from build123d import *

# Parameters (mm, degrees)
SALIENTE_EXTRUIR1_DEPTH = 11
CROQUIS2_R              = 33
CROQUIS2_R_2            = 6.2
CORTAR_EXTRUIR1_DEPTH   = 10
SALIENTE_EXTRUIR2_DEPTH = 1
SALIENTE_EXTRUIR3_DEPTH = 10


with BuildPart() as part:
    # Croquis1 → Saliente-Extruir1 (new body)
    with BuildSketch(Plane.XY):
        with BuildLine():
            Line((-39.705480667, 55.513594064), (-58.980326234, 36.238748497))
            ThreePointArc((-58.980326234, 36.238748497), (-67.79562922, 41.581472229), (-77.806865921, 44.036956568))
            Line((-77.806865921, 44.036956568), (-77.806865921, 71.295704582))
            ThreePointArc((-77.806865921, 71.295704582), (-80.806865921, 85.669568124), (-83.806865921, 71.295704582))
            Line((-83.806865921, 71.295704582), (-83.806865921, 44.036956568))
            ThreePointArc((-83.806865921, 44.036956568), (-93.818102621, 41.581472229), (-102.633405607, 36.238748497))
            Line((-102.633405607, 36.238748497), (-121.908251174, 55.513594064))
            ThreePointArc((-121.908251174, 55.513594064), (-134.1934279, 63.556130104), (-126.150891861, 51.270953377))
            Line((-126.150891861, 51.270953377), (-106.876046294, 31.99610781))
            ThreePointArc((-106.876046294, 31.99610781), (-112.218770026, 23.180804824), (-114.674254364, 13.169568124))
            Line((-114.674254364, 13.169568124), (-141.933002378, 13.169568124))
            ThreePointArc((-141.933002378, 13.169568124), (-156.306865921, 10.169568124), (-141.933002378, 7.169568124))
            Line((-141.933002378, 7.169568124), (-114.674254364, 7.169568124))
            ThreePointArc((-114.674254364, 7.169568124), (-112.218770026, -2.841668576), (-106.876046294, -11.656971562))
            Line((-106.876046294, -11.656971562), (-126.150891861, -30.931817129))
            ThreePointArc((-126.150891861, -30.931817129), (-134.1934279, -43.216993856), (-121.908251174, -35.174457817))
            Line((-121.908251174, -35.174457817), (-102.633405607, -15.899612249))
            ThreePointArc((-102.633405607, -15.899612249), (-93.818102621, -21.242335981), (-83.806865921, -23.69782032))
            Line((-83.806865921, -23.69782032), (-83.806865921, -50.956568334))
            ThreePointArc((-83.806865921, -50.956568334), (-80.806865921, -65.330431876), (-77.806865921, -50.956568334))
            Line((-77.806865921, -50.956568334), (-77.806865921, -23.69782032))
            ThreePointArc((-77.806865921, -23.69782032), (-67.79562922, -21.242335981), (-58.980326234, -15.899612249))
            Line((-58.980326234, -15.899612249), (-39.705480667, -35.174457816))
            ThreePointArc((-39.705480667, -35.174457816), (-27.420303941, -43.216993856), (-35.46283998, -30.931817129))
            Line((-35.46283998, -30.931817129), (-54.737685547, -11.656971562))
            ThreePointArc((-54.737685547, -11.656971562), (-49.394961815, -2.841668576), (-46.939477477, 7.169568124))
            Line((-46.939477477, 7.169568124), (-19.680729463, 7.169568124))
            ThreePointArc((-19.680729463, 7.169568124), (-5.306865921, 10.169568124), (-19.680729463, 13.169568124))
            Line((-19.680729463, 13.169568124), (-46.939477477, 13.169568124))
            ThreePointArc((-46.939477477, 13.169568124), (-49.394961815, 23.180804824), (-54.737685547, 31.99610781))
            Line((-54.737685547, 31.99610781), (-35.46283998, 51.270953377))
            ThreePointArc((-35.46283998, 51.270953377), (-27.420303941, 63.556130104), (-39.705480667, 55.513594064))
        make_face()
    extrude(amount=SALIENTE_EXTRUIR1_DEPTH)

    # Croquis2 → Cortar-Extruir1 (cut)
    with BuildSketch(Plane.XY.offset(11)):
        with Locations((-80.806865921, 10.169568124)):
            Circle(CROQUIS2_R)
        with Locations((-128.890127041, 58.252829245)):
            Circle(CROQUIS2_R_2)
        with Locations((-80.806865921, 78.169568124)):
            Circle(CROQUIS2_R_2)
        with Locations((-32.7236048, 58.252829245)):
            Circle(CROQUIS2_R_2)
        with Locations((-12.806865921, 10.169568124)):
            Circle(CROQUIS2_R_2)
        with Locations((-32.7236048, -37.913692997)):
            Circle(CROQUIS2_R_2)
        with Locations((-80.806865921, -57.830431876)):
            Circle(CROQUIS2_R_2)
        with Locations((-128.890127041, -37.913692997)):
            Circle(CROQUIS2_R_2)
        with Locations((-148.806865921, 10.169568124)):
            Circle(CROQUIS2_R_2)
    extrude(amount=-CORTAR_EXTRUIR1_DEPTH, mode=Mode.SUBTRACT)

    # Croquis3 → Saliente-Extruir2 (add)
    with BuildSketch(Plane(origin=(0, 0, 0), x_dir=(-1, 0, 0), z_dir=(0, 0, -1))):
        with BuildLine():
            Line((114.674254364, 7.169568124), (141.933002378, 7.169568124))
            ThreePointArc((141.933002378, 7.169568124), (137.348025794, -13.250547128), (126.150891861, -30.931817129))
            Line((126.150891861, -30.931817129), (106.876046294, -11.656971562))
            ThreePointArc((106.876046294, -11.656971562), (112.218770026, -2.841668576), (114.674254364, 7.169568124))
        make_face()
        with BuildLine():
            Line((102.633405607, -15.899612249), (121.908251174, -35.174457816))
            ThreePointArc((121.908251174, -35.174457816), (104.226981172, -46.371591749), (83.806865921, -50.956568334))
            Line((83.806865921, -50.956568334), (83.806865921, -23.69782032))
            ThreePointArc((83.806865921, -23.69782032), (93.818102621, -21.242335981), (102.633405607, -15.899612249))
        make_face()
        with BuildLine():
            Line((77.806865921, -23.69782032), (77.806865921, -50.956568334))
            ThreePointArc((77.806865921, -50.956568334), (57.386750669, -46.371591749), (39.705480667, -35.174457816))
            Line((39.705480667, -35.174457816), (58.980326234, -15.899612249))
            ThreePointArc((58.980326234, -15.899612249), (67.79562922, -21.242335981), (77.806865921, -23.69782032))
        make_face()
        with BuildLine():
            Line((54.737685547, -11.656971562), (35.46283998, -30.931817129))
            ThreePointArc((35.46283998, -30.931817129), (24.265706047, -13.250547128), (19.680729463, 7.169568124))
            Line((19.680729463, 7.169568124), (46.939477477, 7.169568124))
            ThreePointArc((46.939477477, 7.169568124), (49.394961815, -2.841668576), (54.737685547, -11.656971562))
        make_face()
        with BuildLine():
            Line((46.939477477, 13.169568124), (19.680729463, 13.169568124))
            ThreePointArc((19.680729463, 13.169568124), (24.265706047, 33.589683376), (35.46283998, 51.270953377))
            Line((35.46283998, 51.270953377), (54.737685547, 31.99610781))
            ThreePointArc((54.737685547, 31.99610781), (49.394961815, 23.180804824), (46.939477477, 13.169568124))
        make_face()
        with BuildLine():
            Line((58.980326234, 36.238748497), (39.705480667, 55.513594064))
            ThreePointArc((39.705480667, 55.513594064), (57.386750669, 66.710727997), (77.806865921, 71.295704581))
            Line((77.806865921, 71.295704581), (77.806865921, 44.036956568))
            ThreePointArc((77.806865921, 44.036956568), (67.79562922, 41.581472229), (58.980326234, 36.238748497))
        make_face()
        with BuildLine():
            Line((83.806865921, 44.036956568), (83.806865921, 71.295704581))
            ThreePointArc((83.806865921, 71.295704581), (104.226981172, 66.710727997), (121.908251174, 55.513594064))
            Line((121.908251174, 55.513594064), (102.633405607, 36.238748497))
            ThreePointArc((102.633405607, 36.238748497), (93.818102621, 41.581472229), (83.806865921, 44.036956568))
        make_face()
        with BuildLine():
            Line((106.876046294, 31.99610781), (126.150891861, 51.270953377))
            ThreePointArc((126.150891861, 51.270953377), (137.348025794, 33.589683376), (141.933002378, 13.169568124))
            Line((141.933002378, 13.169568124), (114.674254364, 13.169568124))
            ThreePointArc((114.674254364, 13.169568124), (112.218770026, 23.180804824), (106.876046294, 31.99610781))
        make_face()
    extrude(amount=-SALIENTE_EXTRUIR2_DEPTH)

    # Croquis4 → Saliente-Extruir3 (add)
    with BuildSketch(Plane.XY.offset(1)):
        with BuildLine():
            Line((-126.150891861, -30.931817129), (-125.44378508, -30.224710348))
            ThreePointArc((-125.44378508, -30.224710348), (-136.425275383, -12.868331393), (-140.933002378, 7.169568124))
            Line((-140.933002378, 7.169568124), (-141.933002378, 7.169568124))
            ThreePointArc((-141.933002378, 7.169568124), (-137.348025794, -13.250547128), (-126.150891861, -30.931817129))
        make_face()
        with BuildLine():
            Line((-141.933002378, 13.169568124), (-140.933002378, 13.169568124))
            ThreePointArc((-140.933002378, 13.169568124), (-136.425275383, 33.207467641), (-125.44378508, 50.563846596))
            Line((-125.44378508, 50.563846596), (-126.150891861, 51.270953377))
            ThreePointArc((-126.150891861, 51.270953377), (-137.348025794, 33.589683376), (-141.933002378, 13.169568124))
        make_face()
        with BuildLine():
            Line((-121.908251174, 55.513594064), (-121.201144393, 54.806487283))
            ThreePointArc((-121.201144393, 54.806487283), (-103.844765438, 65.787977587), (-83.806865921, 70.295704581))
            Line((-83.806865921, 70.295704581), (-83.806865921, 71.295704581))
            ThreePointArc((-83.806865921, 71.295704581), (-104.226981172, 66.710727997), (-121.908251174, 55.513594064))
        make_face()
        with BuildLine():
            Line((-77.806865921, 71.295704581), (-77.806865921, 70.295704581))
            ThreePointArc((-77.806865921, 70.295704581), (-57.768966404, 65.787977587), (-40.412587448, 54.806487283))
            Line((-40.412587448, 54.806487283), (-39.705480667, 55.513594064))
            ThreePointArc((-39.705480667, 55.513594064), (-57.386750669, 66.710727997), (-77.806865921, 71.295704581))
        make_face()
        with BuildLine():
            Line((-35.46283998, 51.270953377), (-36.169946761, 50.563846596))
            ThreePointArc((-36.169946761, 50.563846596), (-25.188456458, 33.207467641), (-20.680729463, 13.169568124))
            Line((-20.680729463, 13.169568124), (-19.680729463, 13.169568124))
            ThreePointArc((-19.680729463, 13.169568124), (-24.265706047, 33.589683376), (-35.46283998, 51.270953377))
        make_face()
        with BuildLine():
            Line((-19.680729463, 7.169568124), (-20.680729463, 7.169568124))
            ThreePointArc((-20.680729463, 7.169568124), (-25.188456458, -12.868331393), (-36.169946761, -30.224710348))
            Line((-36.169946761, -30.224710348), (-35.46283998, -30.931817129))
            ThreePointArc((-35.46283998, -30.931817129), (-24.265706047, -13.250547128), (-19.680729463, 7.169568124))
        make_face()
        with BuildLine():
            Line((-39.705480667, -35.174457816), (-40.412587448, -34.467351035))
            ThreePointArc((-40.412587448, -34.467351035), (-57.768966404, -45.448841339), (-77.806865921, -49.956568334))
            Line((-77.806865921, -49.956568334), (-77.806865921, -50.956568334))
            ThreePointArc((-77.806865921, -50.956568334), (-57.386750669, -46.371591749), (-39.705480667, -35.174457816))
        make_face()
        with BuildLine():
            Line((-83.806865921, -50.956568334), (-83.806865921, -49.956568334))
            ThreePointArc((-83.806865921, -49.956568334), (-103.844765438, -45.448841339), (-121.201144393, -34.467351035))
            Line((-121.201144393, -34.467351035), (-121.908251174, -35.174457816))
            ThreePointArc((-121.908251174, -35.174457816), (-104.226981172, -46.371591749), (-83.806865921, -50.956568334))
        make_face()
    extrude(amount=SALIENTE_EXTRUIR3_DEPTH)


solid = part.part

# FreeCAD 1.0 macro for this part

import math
import FreeCAD as App
import Part
import Sketcher
Q = App.Units.Quantity

doc = App.newDocument("Part")
body = doc.addObject("PartDesign::Body", "Body")

# Sketch on XY plane
sketch1 = body.newObject("Sketcher::SketchObject", "Sketch")
sketch1.AttachmentSupport = (doc.getObject("XY_Plane"), [""])
sketch1.MapMode = "FlatFace"
sketch1.addGeometry(Part.LineSegment(App.Vector(-40, 56, 0), App.Vector(-59, 36, 0)), False)
sketch1.addGeometry(Part.ArcOfCircle(Part.Circle(App.Vector(-81, 10, 0), App.Vector(0, 0, 1), 34), math.radians(50), math.radians(85)), False)
sketch1.addGeometry(Part.LineSegment(App.Vector(-78, 44, 0), App.Vector(-78, 71, 0)), False)
sketch1.addGeometry(Part.ArcOfCircle(Part.Circle(App.Vector(-81, 78, 0), App.Vector(0, 0, 1), 8), math.radians(-66), math.radians(246)), False)
sketch1.addGeometry(Part.LineSegment(App.Vector(-84, 71, 0), App.Vector(-84, 44, 0)), False)
sketch1.addGeometry(Part.ArcOfCircle(Part.Circle(App.Vector(-81, 10, 0), App.Vector(0, 0, 1), 34), math.radians(95), math.radians(130)), False)
sketch1.addGeometry(Part.LineSegment(App.Vector(-103, 36, 0), App.Vector(-122, 56, 0)), False)
sketch1.addGeometry(Part.ArcOfCircle(Part.Circle(App.Vector(-129, 58, 0), App.Vector(0, 0, 1), 8), math.radians(-21), math.radians(291)), False)
sketch1.addGeometry(Part.LineSegment(App.Vector(-126, 51, 0), App.Vector(-107, 32, 0)), False)
sketch1.addGeometry(Part.ArcOfCircle(Part.Circle(App.Vector(-81, 10, 0), App.Vector(0, 0, 1), 34), math.radians(140), math.radians(175)), False)
sketch1.addGeometry(Part.LineSegment(App.Vector(-115, 13, 0), App.Vector(-142, 13, 0)), False)
sketch1.addGeometry(Part.ArcOfCircle(Part.Circle(App.Vector(-149, 10, 0), App.Vector(0, 0, 1), 8), math.radians(24), math.radians(336)), False)
sketch1.addGeometry(Part.LineSegment(App.Vector(-142, 7, 0), App.Vector(-115, 7, 0)), False)
sketch1.addGeometry(Part.ArcOfCircle(Part.Circle(App.Vector(-81, 10, 0), App.Vector(0, 0, 1), 34), math.radians(-175), math.radians(-140)), False)
sketch1.addGeometry(Part.LineSegment(App.Vector(-107, -12, 0), App.Vector(-126, -31, 0)), False)
sketch1.addGeometry(Part.ArcOfCircle(Part.Circle(App.Vector(-129, -38, 0), App.Vector(0, 0, 1), 8), math.radians(69), math.radians(381)), False)
sketch1.addGeometry(Part.LineSegment(App.Vector(-122, -35, 0), App.Vector(-103, -16, 0)), False)
sketch1.addGeometry(Part.ArcOfCircle(Part.Circle(App.Vector(-81, 10, 0), App.Vector(0, 0, 1), 34), math.radians(-130), math.radians(-95)), False)
sketch1.addGeometry(Part.LineSegment(App.Vector(-84, -24, 0), App.Vector(-84, -51, 0)), False)
sketch1.addGeometry(Part.ArcOfCircle(Part.Circle(App.Vector(-81, -58, 0), App.Vector(0, 0, 1), 8), math.radians(114), math.radians(426)), False)
sketch1.addGeometry(Part.LineSegment(App.Vector(-78, -51, 0), App.Vector(-78, -24, 0)), False)
sketch1.addGeometry(Part.ArcOfCircle(Part.Circle(App.Vector(-81, 10, 0), App.Vector(0, 0, 1), 34), math.radians(-85), math.radians(-50)), False)
sketch1.addGeometry(Part.LineSegment(App.Vector(-59, -16, 0), App.Vector(-40, -35, 0)), False)
sketch1.addGeometry(Part.ArcOfCircle(Part.Circle(App.Vector(-33, -38, 0), App.Vector(0, 0, 1), 8), math.radians(159), math.radians(471)), False)
sketch1.addGeometry(Part.LineSegment(App.Vector(-35, -31, 0), App.Vector(-55, -12, 0)), False)
sketch1.addGeometry(Part.ArcOfCircle(Part.Circle(App.Vector(-81, 10, 0), App.Vector(0, 0, 1), 34), math.radians(-40), math.radians(-5)), False)
sketch1.addGeometry(Part.LineSegment(App.Vector(-47, 7, 0), App.Vector(-20, 7, 0)), False)
sketch1.addGeometry(Part.ArcOfCircle(Part.Circle(App.Vector(-13, 10, 0), App.Vector(0, 0, 1), 8), math.radians(-156), math.radians(156)), False)
sketch1.addGeometry(Part.LineSegment(App.Vector(-20, 13, 0), App.Vector(-47, 13, 0)), False)
sketch1.addGeometry(Part.ArcOfCircle(Part.Circle(App.Vector(-81, 10, 0), App.Vector(0, 0, 1), 34), math.radians(5), math.radians(40)), False)
sketch1.addGeometry(Part.LineSegment(App.Vector(-55, 32, 0), App.Vector(-35, 51, 0)), False)
sketch1.addGeometry(Part.ArcOfCircle(Part.Circle(App.Vector(-33, 58, 0), App.Vector(0, 0, 1), 8), math.radians(-111), math.radians(201)), False)
sketch1.addConstraint(Sketcher.Constraint("Coincident", 0, 2, 1, 1))
sketch1.addConstraint(Sketcher.Constraint("Coincident", 1, 2, 2, 1))
sketch1.addConstraint(Sketcher.Constraint("Coincident", 2, 2, 3, 1))
sketch1.addConstraint(Sketcher.Constraint("Coincident", 3, 2, 4, 1))
sketch1.addConstraint(Sketcher.Constraint("Coincident", 4, 2, 5, 1))
sketch1.addConstraint(Sketcher.Constraint("Coincident", 5, 2, 6, 1))
sketch1.addConstraint(Sketcher.Constraint("Coincident", 6, 2, 7, 1))
sketch1.addConstraint(Sketcher.Constraint("Coincident", 7, 2, 8, 1))
sketch1.addConstraint(Sketcher.Constraint("Coincident", 8, 2, 9, 1))
sketch1.addConstraint(Sketcher.Constraint("Coincident", 9, 2, 10, 1))
sketch1.addConstraint(Sketcher.Constraint("Coincident", 10, 2, 11, 1))
sketch1.addConstraint(Sketcher.Constraint("Coincident", 11, 2, 12, 1))
sketch1.addConstraint(Sketcher.Constraint("Coincident", 12, 2, 13, 1))
sketch1.addConstraint(Sketcher.Constraint("Coincident", 13, 2, 14, 1))
sketch1.addConstraint(Sketcher.Constraint("Coincident", 14, 2, 15, 1))
sketch1.addConstraint(Sketcher.Constraint("Coincident", 15, 2, 16, 1))
sketch1.addConstraint(Sketcher.Constraint("Coincident", 16, 2, 17, 1))
sketch1.addConstraint(Sketcher.Constraint("Coincident", 17, 2, 18, 1))
sketch1.addConstraint(Sketcher.Constraint("Coincident", 18, 2, 19, 1))
sketch1.addConstraint(Sketcher.Constraint("Coincident", 19, 2, 20, 1))
sketch1.addConstraint(Sketcher.Constraint("Coincident", 20, 2, 21, 1))
sketch1.addConstraint(Sketcher.Constraint("Coincident", 21, 2, 22, 1))
sketch1.addConstraint(Sketcher.Constraint("Coincident", 22, 2, 23, 1))
sketch1.addConstraint(Sketcher.Constraint("Coincident", 23, 2, 24, 1))
sketch1.addConstraint(Sketcher.Constraint("Coincident", 24, 2, 25, 1))
sketch1.addConstraint(Sketcher.Constraint("Coincident", 25, 2, 26, 1))
sketch1.addConstraint(Sketcher.Constraint("Coincident", 26, 2, 27, 1))
sketch1.addConstraint(Sketcher.Constraint("Coincident", 27, 2, 28, 1))
sketch1.addConstraint(Sketcher.Constraint("Coincident", 28, 2, 29, 1))
sketch1.addConstraint(Sketcher.Constraint("Coincident", 29, 2, 30, 1))
sketch1.addConstraint(Sketcher.Constraint("Coincident", 30, 2, 31, 1))
sketch1.addConstraint(Sketcher.Constraint("Coincident", 31, 2, 0, 1))
sketch1.addConstraint(Sketcher.Constraint("Vertical", 2))
sketch1.addConstraint(Sketcher.Constraint("Vertical", 4))
sketch1.addConstraint(Sketcher.Constraint("Horizontal", 10))
sketch1.addConstraint(Sketcher.Constraint("Horizontal", 12))
sketch1.addConstraint(Sketcher.Constraint("Vertical", 18))
sketch1.addConstraint(Sketcher.Constraint("Vertical", 20))
sketch1.addConstraint(Sketcher.Constraint("Horizontal", 26))
sketch1.addConstraint(Sketcher.Constraint("Horizontal", 28))
sketch1.addConstraint(Sketcher.Constraint("Coincident", 5, 3, 1, 3))
sketch1.addConstraint(Sketcher.Constraint("Coincident", 9, 3, 1, 3))
sketch1.addConstraint(Sketcher.Constraint("Coincident", 13, 3, 1, 3))
sketch1.addConstraint(Sketcher.Constraint("Coincident", 17, 3, 1, 3))
sketch1.addConstraint(Sketcher.Constraint("Coincident", 21, 3, 1, 3))
sketch1.addConstraint(Sketcher.Constraint("Coincident", 25, 3, 1, 3))
sketch1.addConstraint(Sketcher.Constraint("Coincident", 29, 3, 1, 3))
sketch1.addConstraint(Sketcher.Constraint("Equal", 1, 5))
sketch1.addConstraint(Sketcher.Constraint("Equal", 3, 7))
sketch1.addConstraint(Sketcher.Constraint("Equal", 5, 9))
sketch1.addConstraint(Sketcher.Constraint("Equal", 7, 11))
sketch1.addConstraint(Sketcher.Constraint("Equal", 9, 13))
sketch1.addConstraint(Sketcher.Constraint("Equal", 11, 15))
sketch1.addConstraint(Sketcher.Constraint("Equal", 13, 17))
sketch1.addConstraint(Sketcher.Constraint("Equal", 15, 19))
sketch1.addConstraint(Sketcher.Constraint("Equal", 17, 21))
sketch1.addConstraint(Sketcher.Constraint("Equal", 19, 23))
sketch1.addConstraint(Sketcher.Constraint("Equal", 21, 25))
sketch1.addConstraint(Sketcher.Constraint("Equal", 23, 27))
sketch1.addConstraint(Sketcher.Constraint("Equal", 25, 29))
sketch1.addConstraint(Sketcher.Constraint("Equal", 27, 31))
sketch1.addConstraint(Sketcher.Constraint("Perpendicular", 0, 6))
sketch1.addConstraint(Sketcher.Constraint("Parallel", 6, 8))
sketch1.addConstraint(Sketcher.Constraint("Perpendicular", 8, 14))
sketch1.addConstraint(Sketcher.Constraint("Parallel", 14, 16))
sketch1.addConstraint(Sketcher.Constraint("Perpendicular", 16, 22))
sketch1.addConstraint(Sketcher.Constraint("Parallel", 22, 24))
sketch1.addConstraint(Sketcher.Constraint("Perpendicular", 24, 30))
sketch1.addConstraint(Sketcher.Constraint("Horizontal", 9, 3, 11, 3))
sketch1.addConstraint(Sketcher.Constraint("Horizontal", 15, 3, 23, 3))
sketch1.addConstraint(Sketcher.Constraint("Horizontal", 25, 3, 27, 3))
sketch1.addConstraint(Sketcher.Constraint("Horizontal", 7, 3, 31, 3))
sketch1.addConstraint(Sketcher.Constraint("Horizontal", 2, 2, 3, 2))
sketch1.addConstraint(Sketcher.Constraint("Horizontal", 1, 2, 4, 2))
sketch1.addConstraint(Sketcher.Constraint("Horizontal", 0, 2, 5, 2))
sketch1.addConstraint(Sketcher.Constraint("Horizontal", 18, 2, 19, 2))
sketch1.addConstraint(Sketcher.Constraint("Horizontal", 17, 2, 20, 2))
sketch1.addConstraint(Sketcher.Constraint("Horizontal", 16, 2, 21, 2))
sketch1.addConstraint(Sketcher.Constraint("Horizontal", 15, 2, 22, 2))
sketch1.addConstraint(Sketcher.Constraint("Horizontal", 14, 2, 23, 2))
sketch1.addConstraint(Sketcher.Constraint("Horizontal", 12, 2, 25, 2))
sketch1.addConstraint(Sketcher.Constraint("Horizontal", 10, 2, 27, 2))
sketch1.addConstraint(Sketcher.Constraint("Horizontal", 8, 2, 29, 2))
sketch1.addConstraint(Sketcher.Constraint("Horizontal", 7, 2, 30, 2))
sketch1.addConstraint(Sketcher.Constraint("Vertical", 7, 3, 15, 3))
sketch1.addConstraint(Sketcher.Constraint("Vertical", 23, 3, 31, 3))
sketch1.addConstraint(Sketcher.Constraint("Vertical", 10, 2, 11, 2))
sketch1.addConstraint(Sketcher.Constraint("Vertical", 8, 2, 13, 2))
sketch1.addConstraint(Sketcher.Constraint("Vertical", 7, 2, 14, 2))
sketch1.addConstraint(Sketcher.Constraint("Vertical", 6, 2, 15, 2))
sketch1.addConstraint(Sketcher.Constraint("Vertical", 4, 2, 17, 2))
sketch1.addConstraint(Sketcher.Constraint("Equal", 12, 26))
sketch1.addConstraint(Sketcher.Constraint("Equal", 28, 2))
sketch1.addConstraint(Sketcher.Constraint("Equal", 4, 18))
sketch1.addConstraint(Sketcher.Constraint("Equal", 6, 8))
sketch1.addConstraint(Sketcher.Constraint("Radius", 1, Q("34 mm")))
sketch1.addConstraint(Sketcher.Constraint("Radius", 3, Q("7.5 mm")))
sketch1.addConstraint(Sketcher.Constraint("DistanceY", 1, 3, 3, 3, Q("68 mm")))
sketch1.addConstraint(Sketcher.Constraint("DistanceX", 11, 3, 1, 3, Q("68 mm")))
sketch1.addConstraint(Sketcher.Constraint("DistanceX", 17, 3, 1, 2, Q("3 mm")))
sketch1.addConstraint(Sketcher.Constraint("Distance", 0, Q("27.258748 mm")))
sketch1.addConstraint(Sketcher.Constraint("DistanceY", -1, 1, 1, 3, Q("10.169568 mm")))
sketch1.addConstraint(Sketcher.Constraint("DistanceY", -1, 1, 7, 3, Q("58.252829 mm")))
sketch1.addConstraint(Sketcher.Constraint("DistanceY", -1, 1, 0, 2, Q("36.238748 mm")))
sketch1.addConstraint(Sketcher.Constraint("DistanceX", 6, 2, -1, 1, Q("121.908251 mm")))
pad1 = body.newObject("PartDesign::Pad", "Pad")
pad1.Profile = sketch1
pad1.Length = 11

# Sketch on XY plane
sketch2 = body.newObject("Sketcher::SketchObject", "Sketch001")
sketch2.AttachmentSupport = (doc.getObject("XY_Plane"), [""])
sketch2.MapMode = "FlatFace"
sketch2.AttachmentOffset = App.Placement(App.Vector(0, 0, 11), App.Rotation())
sketch2.addGeometry(Part.Circle(App.Vector(-81, 10, 0), App.Vector(0, 0, 1), 33), False)
sketch2.addGeometry(Part.Circle(App.Vector(-129, 58, 0), App.Vector(0, 0, 1), 6), False)
sketch2.addGeometry(Part.Circle(App.Vector(-81, 78, 0), App.Vector(0, 0, 1), 6), False)
sketch2.addGeometry(Part.Circle(App.Vector(-33, 58, 0), App.Vector(0, 0, 1), 6), False)
sketch2.addGeometry(Part.Circle(App.Vector(-13, 10, 0), App.Vector(0, 0, 1), 6), False)
sketch2.addGeometry(Part.Circle(App.Vector(-33, -38, 0), App.Vector(0, 0, 1), 6), False)
sketch2.addGeometry(Part.Circle(App.Vector(-81, -58, 0), App.Vector(0, 0, 1), 6), False)
sketch2.addGeometry(Part.Circle(App.Vector(-129, -38, 0), App.Vector(0, 0, 1), 6), False)
sketch2.addGeometry(Part.Circle(App.Vector(-149, 10, 0), App.Vector(0, 0, 1), 6), False)
sketch2.addConstraint(Sketcher.Constraint("Equal", 1, 2))
sketch2.addConstraint(Sketcher.Constraint("Equal", 2, 3))
sketch2.addConstraint(Sketcher.Constraint("Equal", 3, 4))
sketch2.addConstraint(Sketcher.Constraint("Equal", 4, 5))
sketch2.addConstraint(Sketcher.Constraint("Equal", 5, 6))
sketch2.addConstraint(Sketcher.Constraint("Equal", 6, 7))
sketch2.addConstraint(Sketcher.Constraint("Equal", 7, 8))
sketch2.addConstraint(Sketcher.Constraint("Horizontal", 1, 3, 3, 3))
sketch2.addConstraint(Sketcher.Constraint("Horizontal", 0, 3, 4, 3))
sketch2.addConstraint(Sketcher.Constraint("Horizontal", 5, 3, 7, 3))
sketch2.addConstraint(Sketcher.Constraint("Horizontal", 4, 3, 8, 3))
sketch2.addConstraint(Sketcher.Constraint("Vertical", 0, 3, 2, 3))
sketch2.addConstraint(Sketcher.Constraint("Vertical", 3, 3, 5, 3))
sketch2.addConstraint(Sketcher.Constraint("Vertical", 2, 3, 6, 3))
sketch2.addConstraint(Sketcher.Constraint("Vertical", 1, 3, 7, 3))
sketch2.addConstraint(Sketcher.Constraint("Diameter", 0, Q("66 mm")))
sketch2.addConstraint(Sketcher.Constraint("Diameter", 1, Q("12.4 mm")))
sketch2.addConstraint(Sketcher.Constraint("DistanceY", 0, 3, 2, 3, Q("68 mm")))
sketch2.addConstraint(Sketcher.Constraint("DistanceX", 0, 3, 4, 3, Q("68 mm")))
sketch2.addConstraint(Sketcher.Constraint("DistanceY", 6, 3, 0, 3, Q("68 mm")))
sketch2.addConstraint(Sketcher.Constraint("DistanceX", 8, 3, 0, 3, Q("68 mm")))
sketch2.addConstraint(Sketcher.Constraint("DistanceY", -1, 1, 0, 3, Q("10.169568 mm")))
sketch2.addConstraint(Sketcher.Constraint("DistanceY", -1, 1, 1, 3, Q("58.252829 mm")))
sketch2.addConstraint(Sketcher.Constraint("DistanceX", 1, 3, 0, 3, Q("48.083261 mm")))
sketch2.addConstraint(Sketcher.Constraint("DistanceX", 2, 3, 3, 3, Q("48.083261 mm")))
sketch2.addConstraint(Sketcher.Constraint("DistanceY", 5, 3, 4, 3, Q("48.083261 mm")))
sketch2.addConstraint(Sketcher.Constraint("DistanceX", 0, 3, -1, 1, Q("80.806866 mm")))
pocket1 = body.newObject("PartDesign::Pocket", "Pocket")
pocket1.Profile = sketch2
pocket1.Length = 10

# Sketch on XY plane
sketch3 = body.newObject("Sketcher::SketchObject", "Sketch002")
sketch3.AttachmentSupport = (doc.getObject("XY_Plane"), [""])
sketch3.MapMode = "FlatFace"
sketch3.addGeometry(Part.LineSegment(App.Vector(-142, 7, 0), App.Vector(-115, 7, 0)), False)
sketch3.addGeometry(Part.ArcOfCircle(Part.Circle(App.Vector(-81, 10, 0), App.Vector(0, 0, 1), 34), math.radians(-175), math.radians(-140)), False)
sketch3.addGeometry(Part.LineSegment(App.Vector(-107, -12, 0), App.Vector(-126, -31, 0)), False)
sketch3.addGeometry(Part.ArcOfCircle(Part.Circle(App.Vector(-81, 10, 0), App.Vector(0, 0, 1), 61), math.radians(-177), math.radians(-138)), False)
sketch3.addGeometry(Part.LineSegment(App.Vector(-122, -35, 0), App.Vector(-103, -16, 0)), False)
sketch3.addGeometry(Part.ArcOfCircle(Part.Circle(App.Vector(-81, 10, 0), App.Vector(0, 0, 1), 34), math.radians(-130), math.radians(-95)), False)
sketch3.addGeometry(Part.LineSegment(App.Vector(-84, -24, 0), App.Vector(-84, -51, 0)), False)
sketch3.addGeometry(Part.ArcOfCircle(Part.Circle(App.Vector(-81, 10, 0), App.Vector(0, 0, 1), 61), math.radians(-132), math.radians(-93)), False)
sketch3.addGeometry(Part.LineSegment(App.Vector(-78, -51, 0), App.Vector(-78, -24, 0)), False)
sketch3.addGeometry(Part.ArcOfCircle(Part.Circle(App.Vector(-81, 10, 0), App.Vector(0, 0, 1), 34), math.radians(-85), math.radians(-50)), False)
sketch3.addGeometry(Part.LineSegment(App.Vector(-59, -16, 0), App.Vector(-40, -35, 0)), False)
sketch3.addGeometry(Part.ArcOfCircle(Part.Circle(App.Vector(-81, 10, 0), App.Vector(0, 0, 1), 61), math.radians(-87), math.radians(-48)), False)
sketch3.addGeometry(Part.LineSegment(App.Vector(-35, -31, 0), App.Vector(-55, -12, 0)), False)
sketch3.addGeometry(Part.ArcOfCircle(Part.Circle(App.Vector(-81, 10, 0), App.Vector(0, 0, 1), 34), math.radians(-40), math.radians(-5)), False)
sketch3.addGeometry(Part.LineSegment(App.Vector(-47, 7, 0), App.Vector(-20, 7, 0)), False)
sketch3.addGeometry(Part.ArcOfCircle(Part.Circle(App.Vector(-81, 10, 0), App.Vector(0, 0, 1), 61), math.radians(-42), math.radians(-3)), False)
sketch3.addGeometry(Part.LineSegment(App.Vector(-20, 13, 0), App.Vector(-47, 13, 0)), False)
sketch3.addGeometry(Part.ArcOfCircle(Part.Circle(App.Vector(-81, 10, 0), App.Vector(0, 0, 1), 34), math.radians(5), math.radians(40)), False)
sketch3.addGeometry(Part.LineSegment(App.Vector(-55, 32, 0), App.Vector(-35, 51, 0)), False)
sketch3.addGeometry(Part.ArcOfCircle(Part.Circle(App.Vector(-81, 10, 0), App.Vector(0, 0, 1), 61), math.radians(3), math.radians(42)), False)
sketch3.addGeometry(Part.LineSegment(App.Vector(-40, 56, 0), App.Vector(-59, 36, 0)), False)
sketch3.addGeometry(Part.ArcOfCircle(Part.Circle(App.Vector(-81, 10, 0), App.Vector(0, 0, 1), 34), math.radians(50), math.radians(85)), False)
sketch3.addGeometry(Part.LineSegment(App.Vector(-78, 44, 0), App.Vector(-78, 71, 0)), False)
sketch3.addGeometry(Part.ArcOfCircle(Part.Circle(App.Vector(-81, 10, 0), App.Vector(0, 0, 1), 61), math.radians(48), math.radians(87)), False)
sketch3.addGeometry(Part.LineSegment(App.Vector(-84, 71, 0), App.Vector(-84, 44, 0)), False)
sketch3.addGeometry(Part.ArcOfCircle(Part.Circle(App.Vector(-81, 10, 0), App.Vector(0, 0, 1), 34), math.radians(95), math.radians(130)), False)
sketch3.addGeometry(Part.LineSegment(App.Vector(-103, 36, 0), App.Vector(-122, 56, 0)), False)
sketch3.addGeometry(Part.ArcOfCircle(Part.Circle(App.Vector(-81, 10, 0), App.Vector(0, 0, 1), 61), math.radians(93), math.radians(132)), False)
sketch3.addGeometry(Part.LineSegment(App.Vector(-126, 51, 0), App.Vector(-107, 32, 0)), False)
sketch3.addGeometry(Part.ArcOfCircle(Part.Circle(App.Vector(-81, 10, 0), App.Vector(0, 0, 1), 34), math.radians(140), math.radians(175)), False)
sketch3.addGeometry(Part.LineSegment(App.Vector(-115, 13, 0), App.Vector(-142, 13, 0)), False)
sketch3.addGeometry(Part.ArcOfCircle(Part.Circle(App.Vector(-81, 10, 0), App.Vector(0, 0, 1), 61), math.radians(138), math.radians(177)), False)
sketch3.addConstraint(Sketcher.Constraint("Coincident", 0, 2, 1, 1))
sketch3.addConstraint(Sketcher.Constraint("Coincident", 1, 2, 2, 1))
sketch3.addConstraint(Sketcher.Constraint("Coincident", 2, 2, 3, 2))
sketch3.addConstraint(Sketcher.Constraint("Coincident", 3, 1, 0, 1))
sketch3.addConstraint(Sketcher.Constraint("Coincident", 4, 2, 5, 1))
sketch3.addConstraint(Sketcher.Constraint("Coincident", 5, 2, 6, 1))
sketch3.addConstraint(Sketcher.Constraint("Coincident", 6, 2, 7, 2))
sketch3.addConstraint(Sketcher.Constraint("Coincident", 7, 1, 4, 1))
sketch3.addConstraint(Sketcher.Constraint("Coincident", 8, 2, 9, 1))
sketch3.addConstraint(Sketcher.Constraint("Coincident", 9, 2, 10, 1))
sketch3.addConstraint(Sketcher.Constraint("Coincident", 10, 2, 11, 2))
sketch3.addConstraint(Sketcher.Constraint("Coincident", 11, 1, 8, 1))
sketch3.addConstraint(Sketcher.Constraint("Coincident", 12, 2, 13, 1))
sketch3.addConstraint(Sketcher.Constraint("Coincident", 13, 2, 14, 1))
sketch3.addConstraint(Sketcher.Constraint("Coincident", 14, 2, 15, 2))
sketch3.addConstraint(Sketcher.Constraint("Coincident", 15, 1, 12, 1))
sketch3.addConstraint(Sketcher.Constraint("Coincident", 16, 2, 17, 1))
sketch3.addConstraint(Sketcher.Constraint("Coincident", 17, 2, 18, 1))
sketch3.addConstraint(Sketcher.Constraint("Coincident", 18, 2, 19, 2))
sketch3.addConstraint(Sketcher.Constraint("Coincident", 19, 1, 16, 1))
sketch3.addConstraint(Sketcher.Constraint("Coincident", 20, 2, 21, 1))
sketch3.addConstraint(Sketcher.Constraint("Coincident", 21, 2, 22, 1))
sketch3.addConstraint(Sketcher.Constraint("Coincident", 22, 2, 23, 2))
sketch3.addConstraint(Sketcher.Constraint("Coincident", 23, 1, 20, 1))
sketch3.addConstraint(Sketcher.Constraint("Coincident", 24, 2, 25, 1))
sketch3.addConstraint(Sketcher.Constraint("Coincident", 25, 2, 26, 1))
sketch3.addConstraint(Sketcher.Constraint("Coincident", 26, 2, 27, 2))
sketch3.addConstraint(Sketcher.Constraint("Coincident", 27, 1, 24, 1))
sketch3.addConstraint(Sketcher.Constraint("Coincident", 28, 2, 29, 1))
sketch3.addConstraint(Sketcher.Constraint("Coincident", 29, 2, 30, 1))
sketch3.addConstraint(Sketcher.Constraint("Coincident", 30, 2, 31, 2))
sketch3.addConstraint(Sketcher.Constraint("Coincident", 31, 1, 28, 1))
sketch3.addConstraint(Sketcher.Constraint("Horizontal", 0))
sketch3.addConstraint(Sketcher.Constraint("Vertical", 6))
sketch3.addConstraint(Sketcher.Constraint("Vertical", 8))
sketch3.addConstraint(Sketcher.Constraint("Horizontal", 14))
sketch3.addConstraint(Sketcher.Constraint("Horizontal", 16))
sketch3.addConstraint(Sketcher.Constraint("Vertical", 22))
sketch3.addConstraint(Sketcher.Constraint("Vertical", 24))
sketch3.addConstraint(Sketcher.Constraint("Horizontal", 30))
sketch3.addConstraint(Sketcher.Constraint("Coincident", 3, 3, 1, 3))
sketch3.addConstraint(Sketcher.Constraint("Coincident", 5, 3, 1, 3))
sketch3.addConstraint(Sketcher.Constraint("Coincident", 7, 3, 1, 3))
sketch3.addConstraint(Sketcher.Constraint("Coincident", 9, 3, 1, 3))
sketch3.addConstraint(Sketcher.Constraint("Coincident", 11, 3, 1, 3))
sketch3.addConstraint(Sketcher.Constraint("Coincident", 13, 3, 1, 3))
sketch3.addConstraint(Sketcher.Constraint("Coincident", 15, 3, 1, 3))
sketch3.addConstraint(Sketcher.Constraint("Coincident", 17, 3, 1, 3))
sketch3.addConstraint(Sketcher.Constraint("Coincident", 19, 3, 1, 3))
sketch3.addConstraint(Sketcher.Constraint("Coincident", 21, 3, 1, 3))
sketch3.addConstraint(Sketcher.Constraint("Coincident", 23, 3, 1, 3))
sketch3.addConstraint(Sketcher.Constraint("Coincident", 25, 3, 1, 3))
sketch3.addConstraint(Sketcher.Constraint("Coincident", 27, 3, 1, 3))
sketch3.addConstraint(Sketcher.Constraint("Coincident", 29, 3, 1, 3))
sketch3.addConstraint(Sketcher.Constraint("Coincident", 31, 3, 1, 3))
sketch3.addConstraint(Sketcher.Constraint("Equal", 1, 5))
sketch3.addConstraint(Sketcher.Constraint("Equal", 3, 7))
sketch3.addConstraint(Sketcher.Constraint("Equal", 5, 9))
sketch3.addConstraint(Sketcher.Constraint("Equal", 7, 11))
sketch3.addConstraint(Sketcher.Constraint("Equal", 9, 13))
sketch3.addConstraint(Sketcher.Constraint("Equal", 11, 15))
sketch3.addConstraint(Sketcher.Constraint("Equal", 13, 17))
sketch3.addConstraint(Sketcher.Constraint("Equal", 15, 19))
sketch3.addConstraint(Sketcher.Constraint("Equal", 17, 21))
sketch3.addConstraint(Sketcher.Constraint("Equal", 19, 23))
sketch3.addConstraint(Sketcher.Constraint("Equal", 21, 25))
sketch3.addConstraint(Sketcher.Constraint("Equal", 23, 27))
sketch3.addConstraint(Sketcher.Constraint("Equal", 25, 29))
sketch3.addConstraint(Sketcher.Constraint("Equal", 27, 31))
sketch3.addConstraint(Sketcher.Constraint("Parallel", 2, 4))
sketch3.addConstraint(Sketcher.Constraint("Perpendicular", 4, 10))
sketch3.addConstraint(Sketcher.Constraint("Parallel", 10, 12))
sketch3.addConstraint(Sketcher.Constraint("Perpendicular", 12, 18))
sketch3.addConstraint(Sketcher.Constraint("Parallel", 18, 20))
sketch3.addConstraint(Sketcher.Constraint("Perpendicular", 20, 26))
sketch3.addConstraint(Sketcher.Constraint("Parallel", 26, 28))
sketch3.addConstraint(Sketcher.Constraint("Horizontal", 5, 2, 8, 2))
sketch3.addConstraint(Sketcher.Constraint("Horizontal", 4, 2, 9, 2))
sketch3.addConstraint(Sketcher.Constraint("Horizontal", 7, 1, 10, 2))
sketch3.addConstraint(Sketcher.Constraint("Horizontal", 1, 2, 12, 2))
sketch3.addConstraint(Sketcher.Constraint("Horizontal", 3, 1, 13, 2))
sketch3.addConstraint(Sketcher.Constraint("Horizontal", 21, 2, 24, 2))
sketch3.addConstraint(Sketcher.Constraint("Horizontal", 20, 2, 25, 2))
sketch3.addConstraint(Sketcher.Constraint("Horizontal", 17, 2, 28, 2))
sketch3.addConstraint(Sketcher.Constraint("Horizontal", 19, 1, 29, 2))
sketch3.addConstraint(Sketcher.Constraint("Vertical", 13, 2, 16, 2))
sketch3.addConstraint(Sketcher.Constraint("Vertical", 12, 2, 17, 2))
sketch3.addConstraint(Sketcher.Constraint("Vertical", 9, 2, 20, 2))
sketch3.addConstraint(Sketcher.Constraint("Vertical", 11, 1, 21, 2))
sketch3.addConstraint(Sketcher.Constraint("Equal", 30, 6))
sketch3.addConstraint(Sketcher.Constraint("Equal", 2, 4))
sketch3.addConstraint(Sketcher.Constraint("Radius", 1, Q("34 mm")))
sketch3.addConstraint(Sketcher.Constraint("DistanceY", 0, 2, 3, 3, Q("3 mm")))
sketch3.addConstraint(Sketcher.Constraint("Radius", 3, Q("61.19971 mm")))
sketch3.addConstraint(Sketcher.Constraint("Distance", 2, Q("27.258748 mm")))
sketch3.addConstraint(Sketcher.Constraint("DistanceY", -1, 1, 1, 3, Q("10.169568 mm")))
sketch3.addConstraint(Sketcher.Constraint("DistanceX", 2, 2, -1, 1, Q("126.150892 mm")))
pad2 = body.newObject("PartDesign::Pad", "Pad001")
pad2.Profile = sketch3
pad2.Length = 1

# Sketch on XY plane
sketch4 = body.newObject("Sketcher::SketchObject", "Sketch003")
sketch4.AttachmentSupport = (doc.getObject("XY_Plane"), [""])
sketch4.MapMode = "FlatFace"
sketch4.AttachmentOffset = App.Placement(App.Vector(0, 0, 1), App.Rotation())
sketch4.addGeometry(Part.LineSegment(App.Vector(-126.2, -30.9, 0), App.Vector(-125.4, -30.2, 0)), False)
sketch4.addGeometry(Part.ArcOfCircle(Part.Circle(App.Vector(-80.8, 10.2, 0), App.Vector(0, 0, 1), 60.2), math.radians(-177), math.radians(-138)), False)
sketch4.addGeometry(Part.LineSegment(App.Vector(-140.9, 7.2, 0), App.Vector(-141.9, 7.2, 0)), False)
sketch4.addGeometry(Part.ArcOfCircle(Part.Circle(App.Vector(-80.8, 10.2, 0), App.Vector(0, 0, 1), 61.2), math.radians(-177), math.radians(-138)), False)
sketch4.addGeometry(Part.LineSegment(App.Vector(-141.9, 13.2, 0), App.Vector(-140.9, 13.2, 0)), False)
sketch4.addGeometry(Part.ArcOfCircle(Part.Circle(App.Vector(-80.8, 10.2, 0), App.Vector(0, 0, 1), 60.2), math.radians(138), math.radians(177)), False)
sketch4.addGeometry(Part.LineSegment(App.Vector(-125.4, 50.6, 0), App.Vector(-126.2, 51.3, 0)), False)
sketch4.addGeometry(Part.ArcOfCircle(Part.Circle(App.Vector(-80.8, 10.2, 0), App.Vector(0, 0, 1), 61.2), math.radians(138), math.radians(177)), False)
sketch4.addGeometry(Part.LineSegment(App.Vector(-121.9, 55.5, 0), App.Vector(-121.2, 54.8, 0)), False)
sketch4.addGeometry(Part.ArcOfCircle(Part.Circle(App.Vector(-80.8, 10.2, 0), App.Vector(0, 0, 1), 60.2), math.radians(93), math.radians(132)), False)
sketch4.addGeometry(Part.LineSegment(App.Vector(-83.8, 70.3, 0), App.Vector(-83.8, 71.3, 0)), False)
sketch4.addGeometry(Part.ArcOfCircle(Part.Circle(App.Vector(-80.8, 10.2, 0), App.Vector(0, 0, 1), 61.2), math.radians(93), math.radians(132)), False)
sketch4.addGeometry(Part.LineSegment(App.Vector(-77.8, 71.3, 0), App.Vector(-77.8, 70.3, 0)), False)
sketch4.addGeometry(Part.ArcOfCircle(Part.Circle(App.Vector(-80.8, 10.2, 0), App.Vector(0, 0, 1), 60.2), math.radians(48), math.radians(87)), False)
sketch4.addGeometry(Part.LineSegment(App.Vector(-40.4, 54.8, 0), App.Vector(-39.7, 55.5, 0)), False)
sketch4.addGeometry(Part.ArcOfCircle(Part.Circle(App.Vector(-80.8, 10.2, 0), App.Vector(0, 0, 1), 61.2), math.radians(48), math.radians(87)), False)
sketch4.addGeometry(Part.LineSegment(App.Vector(-35.5, 51.3, 0), App.Vector(-36.2, 50.6, 0)), False)
sketch4.addGeometry(Part.ArcOfCircle(Part.Circle(App.Vector(-80.8, 10.2, 0), App.Vector(0, 0, 1), 60.2), math.radians(3), math.radians(42)), False)
sketch4.addGeometry(Part.LineSegment(App.Vector(-20.7, 13.2, 0), App.Vector(-19.7, 13.2, 0)), False)
sketch4.addGeometry(Part.ArcOfCircle(Part.Circle(App.Vector(-80.8, 10.2, 0), App.Vector(0, 0, 1), 61.2), math.radians(3), math.radians(42)), False)
sketch4.addGeometry(Part.LineSegment(App.Vector(-19.7, 7.2, 0), App.Vector(-20.7, 7.2, 0)), False)
sketch4.addGeometry(Part.ArcOfCircle(Part.Circle(App.Vector(-80.8, 10.2, 0), App.Vector(0, 0, 1), 60.2), math.radians(-42), math.radians(-3)), False)
sketch4.addGeometry(Part.LineSegment(App.Vector(-36.2, -30.2, 0), App.Vector(-35.5, -30.9, 0)), False)
sketch4.addGeometry(Part.ArcOfCircle(Part.Circle(App.Vector(-80.8, 10.2, 0), App.Vector(0, 0, 1), 61.2), math.radians(-42), math.radians(-3)), False)
sketch4.addGeometry(Part.LineSegment(App.Vector(-39.7, -35.2, 0), App.Vector(-40.4, -34.5, 0)), False)
sketch4.addGeometry(Part.ArcOfCircle(Part.Circle(App.Vector(-80.8, 10.2, 0), App.Vector(0, 0, 1), 60.2), math.radians(-87), math.radians(-48)), False)
sketch4.addGeometry(Part.LineSegment(App.Vector(-77.8, -50, 0), App.Vector(-77.8, -51, 0)), False)
sketch4.addGeometry(Part.ArcOfCircle(Part.Circle(App.Vector(-80.8, 10.2, 0), App.Vector(0, 0, 1), 61.2), math.radians(-87), math.radians(-48)), False)
sketch4.addGeometry(Part.LineSegment(App.Vector(-83.8, -51, 0), App.Vector(-83.8, -50, 0)), False)
sketch4.addGeometry(Part.ArcOfCircle(Part.Circle(App.Vector(-80.8, 10.2, 0), App.Vector(0, 0, 1), 60.2), math.radians(-132), math.radians(-93)), False)
sketch4.addGeometry(Part.LineSegment(App.Vector(-121.2, -34.5, 0), App.Vector(-121.9, -35.2, 0)), False)
sketch4.addGeometry(Part.ArcOfCircle(Part.Circle(App.Vector(-80.8, 10.2, 0), App.Vector(0, 0, 1), 61.2), math.radians(-132), math.radians(-93)), False)
sketch4.addConstraint(Sketcher.Constraint("Coincident", 0, 2, 1, 2))
sketch4.addConstraint(Sketcher.Constraint("Coincident", 1, 1, 2, 1))
sketch4.addConstraint(Sketcher.Constraint("Coincident", 2, 2, 3, 1))
sketch4.addConstraint(Sketcher.Constraint("Coincident", 3, 2, 0, 1))
sketch4.addConstraint(Sketcher.Constraint("Coincident", 4, 2, 5, 2))
sketch4.addConstraint(Sketcher.Constraint("Coincident", 5, 1, 6, 1))
sketch4.addConstraint(Sketcher.Constraint("Coincident", 6, 2, 7, 1))
sketch4.addConstraint(Sketcher.Constraint("Coincident", 7, 2, 4, 1))
sketch4.addConstraint(Sketcher.Constraint("Coincident", 8, 2, 9, 2))
sketch4.addConstraint(Sketcher.Constraint("Coincident", 9, 1, 10, 1))
sketch4.addConstraint(Sketcher.Constraint("Coincident", 10, 2, 11, 1))
sketch4.addConstraint(Sketcher.Constraint("Coincident", 11, 2, 8, 1))
sketch4.addConstraint(Sketcher.Constraint("Coincident", 12, 2, 13, 2))
sketch4.addConstraint(Sketcher.Constraint("Coincident", 13, 1, 14, 1))
sketch4.addConstraint(Sketcher.Constraint("Coincident", 14, 2, 15, 1))
sketch4.addConstraint(Sketcher.Constraint("Coincident", 15, 2, 12, 1))
sketch4.addConstraint(Sketcher.Constraint("Coincident", 16, 2, 17, 2))
sketch4.addConstraint(Sketcher.Constraint("Coincident", 17, 1, 18, 1))
sketch4.addConstraint(Sketcher.Constraint("Coincident", 18, 2, 19, 1))
sketch4.addConstraint(Sketcher.Constraint("Coincident", 19, 2, 16, 1))
sketch4.addConstraint(Sketcher.Constraint("Coincident", 20, 2, 21, 2))
sketch4.addConstraint(Sketcher.Constraint("Coincident", 21, 1, 22, 1))
sketch4.addConstraint(Sketcher.Constraint("Coincident", 22, 2, 23, 1))
sketch4.addConstraint(Sketcher.Constraint("Coincident", 23, 2, 20, 1))
sketch4.addConstraint(Sketcher.Constraint("Coincident", 24, 2, 25, 2))
sketch4.addConstraint(Sketcher.Constraint("Coincident", 25, 1, 26, 1))
sketch4.addConstraint(Sketcher.Constraint("Coincident", 26, 2, 27, 1))
sketch4.addConstraint(Sketcher.Constraint("Coincident", 27, 2, 24, 1))
sketch4.addConstraint(Sketcher.Constraint("Coincident", 28, 2, 29, 2))
sketch4.addConstraint(Sketcher.Constraint("Coincident", 29, 1, 30, 1))
sketch4.addConstraint(Sketcher.Constraint("Coincident", 30, 2, 31, 1))
sketch4.addConstraint(Sketcher.Constraint("Coincident", 31, 2, 28, 1))
sketch4.addConstraint(Sketcher.Constraint("Horizontal", 2))
sketch4.addConstraint(Sketcher.Constraint("Horizontal", 4))
sketch4.addConstraint(Sketcher.Constraint("Vertical", 10))
sketch4.addConstraint(Sketcher.Constraint("Vertical", 12))
sketch4.addConstraint(Sketcher.Constraint("Horizontal", 18))
sketch4.addConstraint(Sketcher.Constraint("Horizontal", 20))
sketch4.addConstraint(Sketcher.Constraint("Vertical", 26))
sketch4.addConstraint(Sketcher.Constraint("Vertical", 28))
sketch4.addConstraint(Sketcher.Constraint("Coincident", 3, 3, 1, 3))
sketch4.addConstraint(Sketcher.Constraint("Coincident", 5, 3, 1, 3))
sketch4.addConstraint(Sketcher.Constraint("Coincident", 7, 3, 1, 3))
sketch4.addConstraint(Sketcher.Constraint("Coincident", 9, 3, 1, 3))
sketch4.addConstraint(Sketcher.Constraint("Coincident", 11, 3, 1, 3))
sketch4.addConstraint(Sketcher.Constraint("Coincident", 13, 3, 1, 3))
sketch4.addConstraint(Sketcher.Constraint("Coincident", 15, 3, 1, 3))
sketch4.addConstraint(Sketcher.Constraint("Coincident", 17, 3, 1, 3))
sketch4.addConstraint(Sketcher.Constraint("Coincident", 19, 3, 1, 3))
sketch4.addConstraint(Sketcher.Constraint("Coincident", 21, 3, 1, 3))
sketch4.addConstraint(Sketcher.Constraint("Coincident", 23, 3, 1, 3))
sketch4.addConstraint(Sketcher.Constraint("Coincident", 25, 3, 1, 3))
sketch4.addConstraint(Sketcher.Constraint("Coincident", 27, 3, 1, 3))
sketch4.addConstraint(Sketcher.Constraint("Coincident", 29, 3, 1, 3))
sketch4.addConstraint(Sketcher.Constraint("Coincident", 31, 3, 1, 3))
sketch4.addConstraint(Sketcher.Constraint("Equal", 1, 5))
sketch4.addConstraint(Sketcher.Constraint("Equal", 3, 7))
sketch4.addConstraint(Sketcher.Constraint("Equal", 5, 9))
sketch4.addConstraint(Sketcher.Constraint("Equal", 7, 11))
sketch4.addConstraint(Sketcher.Constraint("Equal", 9, 13))
sketch4.addConstraint(Sketcher.Constraint("Equal", 11, 15))
sketch4.addConstraint(Sketcher.Constraint("Equal", 13, 17))
sketch4.addConstraint(Sketcher.Constraint("Equal", 15, 19))
sketch4.addConstraint(Sketcher.Constraint("Equal", 17, 21))
sketch4.addConstraint(Sketcher.Constraint("Equal", 19, 23))
sketch4.addConstraint(Sketcher.Constraint("Equal", 21, 25))
sketch4.addConstraint(Sketcher.Constraint("Equal", 23, 27))
sketch4.addConstraint(Sketcher.Constraint("Equal", 25, 29))
sketch4.addConstraint(Sketcher.Constraint("Equal", 27, 31))
sketch4.addConstraint(Sketcher.Constraint("Perpendicular", 0, 6))
sketch4.addConstraint(Sketcher.Constraint("Parallel", 6, 8))
sketch4.addConstraint(Sketcher.Constraint("Perpendicular", 8, 14))
sketch4.addConstraint(Sketcher.Constraint("Parallel", 14, 16))
sketch4.addConstraint(Sketcher.Constraint("Perpendicular", 16, 22))
sketch4.addConstraint(Sketcher.Constraint("Parallel", 22, 24))
sketch4.addConstraint(Sketcher.Constraint("Perpendicular", 24, 30))
sketch4.addConstraint(Sketcher.Constraint("Horizontal", 9, 1, 12, 2))
sketch4.addConstraint(Sketcher.Constraint("Horizontal", 8, 2, 13, 1))
sketch4.addConstraint(Sketcher.Constraint("Horizontal", 11, 2, 14, 2))
sketch4.addConstraint(Sketcher.Constraint("Horizontal", 5, 1, 16, 2))
sketch4.addConstraint(Sketcher.Constraint("Horizontal", 7, 2, 17, 1))
sketch4.addConstraint(Sketcher.Constraint("Horizontal", 2, 2, 20, 2))
sketch4.addConstraint(Sketcher.Constraint("Horizontal", 0, 2, 21, 1))
sketch4.addConstraint(Sketcher.Constraint("Horizontal", 25, 1, 28, 2))
sketch4.addConstraint(Sketcher.Constraint("Horizontal", 24, 2, 29, 1))
sketch4.addConstraint(Sketcher.Constraint("Vertical", 1, 1, 4, 2))
sketch4.addConstraint(Sketcher.Constraint("Vertical", 0, 2, 5, 1))
sketch4.addConstraint(Sketcher.Constraint("Vertical", 13, 1, 24, 2))
sketch4.addConstraint(Sketcher.Constraint("Vertical", 15, 2, 25, 1))
sketch4.addConstraint(Sketcher.Constraint("DistanceX", 2, 2, 2, 1, Q("1 mm")))
sketch4.addConstraint(Sketcher.Constraint("DistanceY", 1, 1, 3, 3, Q("3 mm")))
sketch4.addConstraint(Sketcher.Constraint("DistanceX", 9, 1, 9, 3, Q("3 mm")))
sketch4.addConstraint(Sketcher.Constraint("Radius", 3, Q("61.19971 mm")))
sketch4.addConstraint(Sketcher.Constraint("DistanceY", -1, 1, 1, 3, Q("10.169568 mm")))
sketch4.addConstraint(Sketcher.Constraint("DistanceY", 0, 2, -1, 1, Q("30.22471 mm")))
sketch4.addConstraint(Sketcher.Constraint("DistanceX", 3, 2, -1, 1, Q("126.150892 mm")))
sketch4.addConstraint(Sketcher.Constraint("DistanceX", 11, 2, -1, 1, Q("121.908251 mm")))
pad3 = body.newObject("PartDesign::Pad", "Pad002")
pad3.Profile = sketch4
pad3.Length = 10

doc.recompute()
